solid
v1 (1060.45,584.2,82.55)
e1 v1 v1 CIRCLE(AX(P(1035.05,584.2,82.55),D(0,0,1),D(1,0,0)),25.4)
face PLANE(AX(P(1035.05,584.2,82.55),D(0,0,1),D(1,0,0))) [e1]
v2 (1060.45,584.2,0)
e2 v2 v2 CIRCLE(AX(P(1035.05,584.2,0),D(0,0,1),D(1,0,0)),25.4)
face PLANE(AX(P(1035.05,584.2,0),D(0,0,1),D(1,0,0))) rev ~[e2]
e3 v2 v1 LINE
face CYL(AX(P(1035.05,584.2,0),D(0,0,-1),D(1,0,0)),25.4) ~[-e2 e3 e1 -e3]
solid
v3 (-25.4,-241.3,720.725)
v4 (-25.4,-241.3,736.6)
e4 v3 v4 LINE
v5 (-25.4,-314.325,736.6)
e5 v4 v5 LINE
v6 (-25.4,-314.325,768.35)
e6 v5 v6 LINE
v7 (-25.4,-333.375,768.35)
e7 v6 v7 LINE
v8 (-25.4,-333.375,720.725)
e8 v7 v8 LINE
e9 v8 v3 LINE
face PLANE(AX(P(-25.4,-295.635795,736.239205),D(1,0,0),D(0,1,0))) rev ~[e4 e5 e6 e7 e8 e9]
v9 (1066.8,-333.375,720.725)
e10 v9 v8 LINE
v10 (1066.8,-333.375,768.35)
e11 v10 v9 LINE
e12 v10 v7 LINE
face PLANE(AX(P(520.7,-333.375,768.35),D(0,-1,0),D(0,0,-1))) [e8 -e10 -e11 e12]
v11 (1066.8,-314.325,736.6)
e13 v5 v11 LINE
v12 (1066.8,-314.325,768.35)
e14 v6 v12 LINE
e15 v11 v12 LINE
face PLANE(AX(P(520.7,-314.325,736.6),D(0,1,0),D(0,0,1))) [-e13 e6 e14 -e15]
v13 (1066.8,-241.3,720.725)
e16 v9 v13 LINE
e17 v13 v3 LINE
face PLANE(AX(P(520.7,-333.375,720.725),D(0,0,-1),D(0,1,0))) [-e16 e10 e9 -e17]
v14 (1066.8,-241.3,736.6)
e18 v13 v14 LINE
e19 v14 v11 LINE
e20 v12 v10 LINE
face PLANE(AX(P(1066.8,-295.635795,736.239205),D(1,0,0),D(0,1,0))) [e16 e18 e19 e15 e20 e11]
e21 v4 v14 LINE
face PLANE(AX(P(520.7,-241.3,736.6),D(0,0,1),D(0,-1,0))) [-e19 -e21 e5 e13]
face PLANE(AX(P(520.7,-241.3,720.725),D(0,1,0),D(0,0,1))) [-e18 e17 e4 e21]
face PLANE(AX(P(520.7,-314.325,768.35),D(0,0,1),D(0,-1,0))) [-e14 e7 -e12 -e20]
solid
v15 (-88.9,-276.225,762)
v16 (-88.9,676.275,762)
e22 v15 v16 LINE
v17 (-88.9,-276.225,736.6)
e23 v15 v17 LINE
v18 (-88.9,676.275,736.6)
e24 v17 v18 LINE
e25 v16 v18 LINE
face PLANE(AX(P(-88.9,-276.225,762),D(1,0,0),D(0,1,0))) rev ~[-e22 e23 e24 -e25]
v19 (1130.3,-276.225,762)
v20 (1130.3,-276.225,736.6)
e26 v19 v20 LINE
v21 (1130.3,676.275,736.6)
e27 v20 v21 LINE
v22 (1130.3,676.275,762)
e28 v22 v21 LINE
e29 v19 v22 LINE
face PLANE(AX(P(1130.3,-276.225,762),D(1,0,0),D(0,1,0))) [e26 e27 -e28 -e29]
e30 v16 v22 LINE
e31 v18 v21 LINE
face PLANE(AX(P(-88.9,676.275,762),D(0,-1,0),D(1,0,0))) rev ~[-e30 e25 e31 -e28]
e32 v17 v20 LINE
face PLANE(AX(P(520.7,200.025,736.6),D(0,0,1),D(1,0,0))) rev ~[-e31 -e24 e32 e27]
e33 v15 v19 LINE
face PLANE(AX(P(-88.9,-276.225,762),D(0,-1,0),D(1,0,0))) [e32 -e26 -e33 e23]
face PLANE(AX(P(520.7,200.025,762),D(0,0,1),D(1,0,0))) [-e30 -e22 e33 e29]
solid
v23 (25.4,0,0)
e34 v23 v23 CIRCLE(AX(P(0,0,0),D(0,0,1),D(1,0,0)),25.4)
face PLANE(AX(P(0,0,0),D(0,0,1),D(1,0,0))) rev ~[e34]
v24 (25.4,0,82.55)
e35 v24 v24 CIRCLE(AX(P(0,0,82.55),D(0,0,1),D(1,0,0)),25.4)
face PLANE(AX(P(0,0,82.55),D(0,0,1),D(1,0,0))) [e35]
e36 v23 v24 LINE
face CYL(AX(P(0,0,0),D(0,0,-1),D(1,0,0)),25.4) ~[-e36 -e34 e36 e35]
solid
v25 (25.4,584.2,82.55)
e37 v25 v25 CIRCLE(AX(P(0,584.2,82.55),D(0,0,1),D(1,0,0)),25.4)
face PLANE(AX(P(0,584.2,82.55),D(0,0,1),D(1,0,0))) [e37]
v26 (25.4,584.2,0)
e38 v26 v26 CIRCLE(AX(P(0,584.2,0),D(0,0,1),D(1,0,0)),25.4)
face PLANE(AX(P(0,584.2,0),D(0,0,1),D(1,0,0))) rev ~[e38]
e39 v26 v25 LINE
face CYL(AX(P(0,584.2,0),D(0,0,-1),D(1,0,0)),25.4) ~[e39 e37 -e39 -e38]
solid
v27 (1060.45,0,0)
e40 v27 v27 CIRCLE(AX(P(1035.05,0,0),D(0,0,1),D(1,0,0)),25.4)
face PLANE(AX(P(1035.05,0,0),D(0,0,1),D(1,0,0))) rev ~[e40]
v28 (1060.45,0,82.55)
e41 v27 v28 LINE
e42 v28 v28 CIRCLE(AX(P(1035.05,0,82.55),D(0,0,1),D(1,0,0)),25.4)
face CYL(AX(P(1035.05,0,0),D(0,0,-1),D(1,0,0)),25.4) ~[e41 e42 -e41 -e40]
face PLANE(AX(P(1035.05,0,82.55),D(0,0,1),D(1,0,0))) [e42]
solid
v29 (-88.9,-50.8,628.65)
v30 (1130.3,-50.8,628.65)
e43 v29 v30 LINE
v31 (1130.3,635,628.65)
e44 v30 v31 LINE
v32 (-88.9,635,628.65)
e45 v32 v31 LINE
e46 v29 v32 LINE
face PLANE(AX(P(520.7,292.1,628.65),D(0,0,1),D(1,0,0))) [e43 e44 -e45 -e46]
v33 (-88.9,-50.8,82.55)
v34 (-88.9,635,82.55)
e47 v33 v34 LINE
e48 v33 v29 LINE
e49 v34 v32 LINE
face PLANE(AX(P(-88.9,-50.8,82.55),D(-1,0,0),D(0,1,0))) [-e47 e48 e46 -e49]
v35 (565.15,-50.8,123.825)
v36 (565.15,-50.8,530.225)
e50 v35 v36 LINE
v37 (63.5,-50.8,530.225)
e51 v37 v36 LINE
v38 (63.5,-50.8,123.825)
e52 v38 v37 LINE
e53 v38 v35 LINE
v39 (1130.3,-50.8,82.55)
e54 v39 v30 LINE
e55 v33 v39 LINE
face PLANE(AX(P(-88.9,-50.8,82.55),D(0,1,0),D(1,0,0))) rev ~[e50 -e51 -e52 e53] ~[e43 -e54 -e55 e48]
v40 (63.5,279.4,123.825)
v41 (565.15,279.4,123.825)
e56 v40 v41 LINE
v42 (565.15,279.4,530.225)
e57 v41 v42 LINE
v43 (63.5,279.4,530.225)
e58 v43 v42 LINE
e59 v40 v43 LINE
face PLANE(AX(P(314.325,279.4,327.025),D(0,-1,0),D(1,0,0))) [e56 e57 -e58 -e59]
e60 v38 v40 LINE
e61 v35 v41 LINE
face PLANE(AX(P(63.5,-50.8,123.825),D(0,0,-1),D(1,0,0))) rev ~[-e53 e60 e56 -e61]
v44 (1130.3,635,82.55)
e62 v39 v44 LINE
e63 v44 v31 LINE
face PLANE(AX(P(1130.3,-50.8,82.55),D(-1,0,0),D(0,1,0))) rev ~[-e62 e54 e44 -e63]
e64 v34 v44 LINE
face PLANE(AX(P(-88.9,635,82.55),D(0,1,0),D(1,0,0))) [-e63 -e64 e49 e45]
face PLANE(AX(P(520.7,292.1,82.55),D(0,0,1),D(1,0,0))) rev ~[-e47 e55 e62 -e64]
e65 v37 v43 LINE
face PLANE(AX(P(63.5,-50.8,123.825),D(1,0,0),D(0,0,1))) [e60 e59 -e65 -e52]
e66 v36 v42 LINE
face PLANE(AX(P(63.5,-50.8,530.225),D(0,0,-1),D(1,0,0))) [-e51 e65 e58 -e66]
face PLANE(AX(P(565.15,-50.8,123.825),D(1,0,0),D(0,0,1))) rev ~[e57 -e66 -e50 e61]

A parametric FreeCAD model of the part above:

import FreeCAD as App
import Part
import Sketcher

V = App.Vector
Q = App.Units.Quantity

doc = App.newDocument("Part")
body = doc.addObject("PartDesign::Body", "Body")

# Sketch on XY plane
sketch1 = body.newObject("Sketcher::SketchObject", "Sketch")
sketch1.AttachmentSupport = (doc.getObject("XY_Plane"), [""])
sketch1.MapMode = "FlatFace"
sketch1.addGeometry(Part.Circle(V(1035, 0, 0), V(0, 0, 1), 25), False)
sketch1.addConstraint(Sketcher.Constraint("PointOnObject", 0, 3, -1))
sketch1.addConstraint(Sketcher.Constraint("Diameter", 0, Q("2 in")))
sketch1.addConstraint(Sketcher.Constraint("DistanceX", -1, 1, 0, 3, Q("40.75 in")))
pad1 = body.newObject("PartDesign::Pad", "Pad")
pad1.Profile = sketch1
pad1.Length = Q("3.25 in")
body2 = doc.addObject("PartDesign::Body", "Body001")

# Sketch on XY plane
sketch2 = body2.newObject("Sketcher::SketchObject", "Sketch001")
sketch2.AttachmentSupport = (doc.getObject("XY_Plane001"), [""])
sketch2.MapMode = "FlatFace"
sketch2.addGeometry(Part.Circle(V(0, 0, 0), V(0, 0, 1), 25), False)
sketch2.addConstraint(Sketcher.Constraint("Coincident", 0, 3, -1, 1))
sketch2.addConstraint(Sketcher.Constraint("Diameter", 0, Q("2 in")))
pad2 = body2.newObject("PartDesign::Pad", "Pad001")
pad2.Profile = sketch2
pad2.Length = Q("3.25 in")
body3 = doc.addObject("PartDesign::Body", "Body002")

# Sketch on XY plane
sketch3 = body3.newObject("Sketcher::SketchObject", "Sketch002")
sketch3.AttachmentSupport = (doc.getObject("XY_Plane002"), [""])
sketch3.MapMode = "FlatFace"
sketch3.addGeometry(Part.Circle(V(1035, 584, 0), V(0, 0, 1), 25), False)
sketch3.addConstraint(Sketcher.Constraint("Diameter", 0, Q("2 in")))
sketch3.addConstraint(Sketcher.Constraint("DistanceY", -1, 1, 0, 3, Q("23 in")))
sketch3.addConstraint(Sketcher.Constraint("DistanceX", -1, 1, 0, 3, Q("40.75 in")))
pad3 = body3.newObject("PartDesign::Pad", "Pad002")
pad3.Profile = sketch3
pad3.Length = Q("3.25 in")
body4 = doc.addObject("PartDesign::Body", "Body003")

# Sketch on XY plane
sketch4 = body4.newObject("Sketcher::SketchObject", "Sketch003")
sketch4.AttachmentSupport = (doc.getObject("XY_Plane003"), [""])
sketch4.MapMode = "FlatFace"
sketch4.addGeometry(Part.Circle(V(0, 584, 0), V(0, 0, 1), 25), False)
sketch4.addConstraint(Sketcher.Constraint("PointOnObject", 0, 3, -2))
sketch4.addConstraint(Sketcher.Constraint("Diameter", 0, Q("2 in")))
sketch4.addConstraint(Sketcher.Constraint("DistanceY", -1, 1, 0, 3, Q("23 in")))
pad4 = body4.newObject("PartDesign::Pad", "Pad003")
pad4.Profile = sketch4
pad4.Length = Q("3.25 in")
body5 = doc.addObject("PartDesign::Body", "Body004")

# Sketch on XY plane
sketch5 = body5.newObject("Sketcher::SketchObject", "Sketch004")
sketch5.AttachmentSupport = (doc.getObject("XY_Plane004"), [""])
sketch5.MapMode = "FlatFace"
sketch5.AttachmentOffset = App.Placement(V(0, 0, 3.25 * 25.4), App.Rotation())
sketch5.addGeometry(Part.LineSegment(V(-89, 635, 0), V(-89, -51, 0)), False)
sketch5.addGeometry(Part.LineSegment(V(-89, -51, 0), V(1130, -51, 0)), False)
sketch5.addGeometry(Part.LineSegment(V(1130, -51, 0), V(1130, 635, 0)), False)
sketch5.addGeometry(Part.LineSegment(V(1130, 635, 0), V(-89, 635, 0)), False)
sketch5.addConstraint(Sketcher.Constraint("Coincident", 0, 2, 1, 1))
sketch5.addConstraint(Sketcher.Constraint("Coincident", 1, 2, 2, 1))
sketch5.addConstraint(Sketcher.Constraint("Coincident", 2, 2, 3, 1))
sketch5.addConstraint(Sketcher.Constraint("Coincident", 3, 2, 0, 1))
sketch5.addConstraint(Sketcher.Constraint("Vertical", 0))
sketch5.addConstraint(Sketcher.Constraint("Horizontal", 1))
sketch5.addConstraint(Sketcher.Constraint("Vertical", 2))
sketch5.addConstraint(Sketcher.Constraint("Horizontal", 3))
sketch5.addConstraint(Sketcher.Constraint("DistanceX", 1, 1, 1, 2, Q("48 in")))
sketch5.addConstraint(Sketcher.Constraint("DistanceY", 0, 2, 0, 1, Q("27 in")))
sketch5.addConstraint(Sketcher.Constraint("DistanceY", 0, 2, -1, 1, Q("2 in")))
sketch5.addConstraint(Sketcher.Constraint("DistanceX", 0, 2, -1, 1, Q("3.5 in")))
pad5 = body5.newObject("PartDesign::Pad", "Pad004")
pad5.Profile = sketch5
pad5.Length = Q("21.5 in")

# Sketch on XZ plane
sketch6 = body5.newObject("Sketcher::SketchObject", "Sketch005")
sketch6.AttachmentSupport = (doc.getObject("XZ_Plane004"), [""])
sketch6.MapMode = "FlatFace"
sketch6.AttachmentOffset = App.Placement(V(0, 0, 2 * 25.4), App.Rotation())
sketch6.addGeometry(Part.LineSegment(V(64, 530, 0), V(64, 124, 0)), False)
sketch6.addGeometry(Part.LineSegment(V(64, 124, 0), V(565, 124, 0)), False)
sketch6.addGeometry(Part.LineSegment(V(565, 124, 0), V(565, 530, 0)), False)
sketch6.addGeometry(Part.LineSegment(V(565, 530, 0), V(64, 530, 0)), False)
sketch6.addConstraint(Sketcher.Constraint("Coincident", 0, 2, 1, 1))
sketch6.addConstraint(Sketcher.Constraint("Coincident", 1, 2, 2, 1))
sketch6.addConstraint(Sketcher.Constraint("Coincident", 2, 2, 3, 1))
sketch6.addConstraint(Sketcher.Constraint("Coincident", 3, 2, 0, 1))
sketch6.addConstraint(Sketcher.Constraint("Vertical", 0))
sketch6.addConstraint(Sketcher.Constraint("Horizontal", 1))
sketch6.addConstraint(Sketcher.Constraint("Vertical", 2))
sketch6.addConstraint(Sketcher.Constraint("Horizontal", 3))
sketch6.addConstraint(Sketcher.Constraint("DistanceY", 0, 2, 0, 1, Q("16 in")))
sketch6.addConstraint(Sketcher.Constraint("DistanceX", 1, 1, 1, 2, Q("19.75 in")))
sketch6.addConstraint(Sketcher.Constraint("DistanceX", -1, 1, 0, 2, Q("2.5 in")))
sketch6.addConstraint(Sketcher.Constraint("DistanceY", -1, 1, 0, 2, Q("4.875 in")))
pocket1 = body5.newObject("PartDesign::Pocket", "Pocket")
pocket1.Profile = sketch6
pocket1.Length = Q("13 in")
body6 = doc.addObject("PartDesign::Body", "Body005")

# Sketch on XY plane
sketch7 = body6.newObject("Sketcher::SketchObject", "Sketch006")
sketch7.AttachmentSupport = (doc.getObject("XY_Plane005"), [""])
sketch7.MapMode = "FlatFace"
sketch7.AttachmentOffset = App.Placement(V(0, 0, 30 * 25.4), App.Rotation())
sketch7.addGeometry(Part.LineSegment(V(-89, 676, 0), V(-89, -276, 0)), False)
sketch7.addGeometry(Part.LineSegment(V(-89, -276, 0), V(1130, -276, 0)), False)
sketch7.addGeometry(Part.LineSegment(V(1130, -276, 0), V(1130, 676, 0)), False)
sketch7.addGeometry(Part.LineSegment(V(1130, 676, 0), V(-89, 676, 0)), False)
sketch7.addConstraint(Sketcher.Constraint("Coincident", 0, 2, 1, 1))
sketch7.addConstraint(Sketcher.Constraint("Coincident", 1, 2, 2, 1))
sketch7.addConstraint(Sketcher.Constraint("Coincident", 2, 2, 3, 1))
sketch7.addConstraint(Sketcher.Constraint("Coincident", 3, 2, 0, 1))
sketch7.addConstraint(Sketcher.Constraint("Vertical", 0))
sketch7.addConstraint(Sketcher.Constraint("Horizontal", 1))
sketch7.addConstraint(Sketcher.Constraint("Vertical", 2))
sketch7.addConstraint(Sketcher.Constraint("Horizontal", 3))
sketch7.addConstraint(Sketcher.Constraint("DistanceX", 1, 1, 1, 2, Q("48 in")))
sketch7.addConstraint(Sketcher.Constraint("DistanceY", 0, 2, 0, 1, Q("37.5 in")))
sketch7.addConstraint(Sketcher.Constraint("DistanceX", 0, 2, -1, 1, Q("3.5 in")))
sketch7.addConstraint(Sketcher.Constraint("DistanceY", 0, 2, -1, 1, Q("10.875 in")))
pad6 = body6.newObject("PartDesign::Pad", "Pad005")
pad6.Profile = sketch7
pad6.Length = Q("1 in")
pad6.Reversed = True
body7 = doc.addObject("PartDesign::Body", "Body006")

# Sketch on YZ plane
sketch8 = body7.newObject("Sketcher::SketchObject", "Sketch007")
sketch8.AttachmentSupport = (doc.getObject("YZ_Plane006"), [""])
sketch8.MapMode = "FlatFace"
sketch8.AttachmentOffset = App.Placement(V(0, 0, 20.5 * 25.4), App.Rotation())
sketch8.addGeometry(Part.LineSegment(V(-241, 721, 0), V(-241, 737, 0)), False)
sketch8.addGeometry(Part.LineSegment(V(-241, 737, 0), V(-314, 737, 0)), False)
sketch8.addGeometry(Part.LineSegment(V(-314, 737, 0), V(-314, 768, 0)), False)
sketch8.addGeometry(Part.LineSegment(V(-314, 768, 0), V(-333, 768, 0)), False)
sketch8.addGeometry(Part.LineSegment(V(-333, 768, 0), V(-333, 721, 0)), False)
sketch8.addGeometry(Part.LineSegment(V(-333, 721, 0), V(-241, 721, 0)), False)
sketch8.addConstraint(Sketcher.Constraint("Coincident", 0, 2, 1, 1))
sketch8.addConstraint(Sketcher.Constraint("Coincident", 1, 2, 2, 1))
sketch8.addConstraint(Sketcher.Constraint("Coincident", 2, 2, 3, 1))
sketch8.addConstraint(Sketcher.Constraint("Coincident", 3, 2, 4, 1))
sketch8.addConstraint(Sketcher.Constraint("Coincident", 4, 2, 5, 1))
sketch8.addConstraint(Sketcher.Constraint("Coincident", 5, 2, 0, 1))
sketch8.addConstraint(Sketcher.Constraint("Vertical", 0))
sketch8.addConstraint(Sketcher.Constraint("Horizontal", 1))
sketch8.addConstraint(Sketcher.Constraint("Vertical", 2))
sketch8.addConstraint(Sketcher.Constraint("Horizontal", 3))
sketch8.addConstraint(Sketcher.Constraint("Vertical", 4))
sketch8.addConstraint(Sketcher.Constraint("Horizontal", 5))
sketch8.addConstraint(Sketcher.Constraint("DistanceY", -1, 1, 0, 2, Q("29 in")))
sketch8.addConstraint(Sketcher.Constraint("DistanceX", 3, 2, 3, 1, Q("0.75 in")))
sketch8.addConstraint(Sketcher.Constraint("DistanceY", 2, 1, 2, 2, Q("1.25 in")))
sketch8.addConstraint(Sketcher.Constraint("DistanceX", 0, 2, -1, 1, Q("9.5 in")))
sketch8.addConstraint(Sketcher.Constraint("DistanceX", 1, 2, 1, 1, Q("2.875 in")))
sketch8.addConstraint(Sketcher.Constraint("DistanceY", 0, 1, 0, 2, Q("0.625 in")))
pad7 = body7.newObject("PartDesign::Pad", "Pad006")
pad7.Profile = sketch8
pad7.Length = Q("43 in")
pad7.Midplane = True

doc.recompute()
